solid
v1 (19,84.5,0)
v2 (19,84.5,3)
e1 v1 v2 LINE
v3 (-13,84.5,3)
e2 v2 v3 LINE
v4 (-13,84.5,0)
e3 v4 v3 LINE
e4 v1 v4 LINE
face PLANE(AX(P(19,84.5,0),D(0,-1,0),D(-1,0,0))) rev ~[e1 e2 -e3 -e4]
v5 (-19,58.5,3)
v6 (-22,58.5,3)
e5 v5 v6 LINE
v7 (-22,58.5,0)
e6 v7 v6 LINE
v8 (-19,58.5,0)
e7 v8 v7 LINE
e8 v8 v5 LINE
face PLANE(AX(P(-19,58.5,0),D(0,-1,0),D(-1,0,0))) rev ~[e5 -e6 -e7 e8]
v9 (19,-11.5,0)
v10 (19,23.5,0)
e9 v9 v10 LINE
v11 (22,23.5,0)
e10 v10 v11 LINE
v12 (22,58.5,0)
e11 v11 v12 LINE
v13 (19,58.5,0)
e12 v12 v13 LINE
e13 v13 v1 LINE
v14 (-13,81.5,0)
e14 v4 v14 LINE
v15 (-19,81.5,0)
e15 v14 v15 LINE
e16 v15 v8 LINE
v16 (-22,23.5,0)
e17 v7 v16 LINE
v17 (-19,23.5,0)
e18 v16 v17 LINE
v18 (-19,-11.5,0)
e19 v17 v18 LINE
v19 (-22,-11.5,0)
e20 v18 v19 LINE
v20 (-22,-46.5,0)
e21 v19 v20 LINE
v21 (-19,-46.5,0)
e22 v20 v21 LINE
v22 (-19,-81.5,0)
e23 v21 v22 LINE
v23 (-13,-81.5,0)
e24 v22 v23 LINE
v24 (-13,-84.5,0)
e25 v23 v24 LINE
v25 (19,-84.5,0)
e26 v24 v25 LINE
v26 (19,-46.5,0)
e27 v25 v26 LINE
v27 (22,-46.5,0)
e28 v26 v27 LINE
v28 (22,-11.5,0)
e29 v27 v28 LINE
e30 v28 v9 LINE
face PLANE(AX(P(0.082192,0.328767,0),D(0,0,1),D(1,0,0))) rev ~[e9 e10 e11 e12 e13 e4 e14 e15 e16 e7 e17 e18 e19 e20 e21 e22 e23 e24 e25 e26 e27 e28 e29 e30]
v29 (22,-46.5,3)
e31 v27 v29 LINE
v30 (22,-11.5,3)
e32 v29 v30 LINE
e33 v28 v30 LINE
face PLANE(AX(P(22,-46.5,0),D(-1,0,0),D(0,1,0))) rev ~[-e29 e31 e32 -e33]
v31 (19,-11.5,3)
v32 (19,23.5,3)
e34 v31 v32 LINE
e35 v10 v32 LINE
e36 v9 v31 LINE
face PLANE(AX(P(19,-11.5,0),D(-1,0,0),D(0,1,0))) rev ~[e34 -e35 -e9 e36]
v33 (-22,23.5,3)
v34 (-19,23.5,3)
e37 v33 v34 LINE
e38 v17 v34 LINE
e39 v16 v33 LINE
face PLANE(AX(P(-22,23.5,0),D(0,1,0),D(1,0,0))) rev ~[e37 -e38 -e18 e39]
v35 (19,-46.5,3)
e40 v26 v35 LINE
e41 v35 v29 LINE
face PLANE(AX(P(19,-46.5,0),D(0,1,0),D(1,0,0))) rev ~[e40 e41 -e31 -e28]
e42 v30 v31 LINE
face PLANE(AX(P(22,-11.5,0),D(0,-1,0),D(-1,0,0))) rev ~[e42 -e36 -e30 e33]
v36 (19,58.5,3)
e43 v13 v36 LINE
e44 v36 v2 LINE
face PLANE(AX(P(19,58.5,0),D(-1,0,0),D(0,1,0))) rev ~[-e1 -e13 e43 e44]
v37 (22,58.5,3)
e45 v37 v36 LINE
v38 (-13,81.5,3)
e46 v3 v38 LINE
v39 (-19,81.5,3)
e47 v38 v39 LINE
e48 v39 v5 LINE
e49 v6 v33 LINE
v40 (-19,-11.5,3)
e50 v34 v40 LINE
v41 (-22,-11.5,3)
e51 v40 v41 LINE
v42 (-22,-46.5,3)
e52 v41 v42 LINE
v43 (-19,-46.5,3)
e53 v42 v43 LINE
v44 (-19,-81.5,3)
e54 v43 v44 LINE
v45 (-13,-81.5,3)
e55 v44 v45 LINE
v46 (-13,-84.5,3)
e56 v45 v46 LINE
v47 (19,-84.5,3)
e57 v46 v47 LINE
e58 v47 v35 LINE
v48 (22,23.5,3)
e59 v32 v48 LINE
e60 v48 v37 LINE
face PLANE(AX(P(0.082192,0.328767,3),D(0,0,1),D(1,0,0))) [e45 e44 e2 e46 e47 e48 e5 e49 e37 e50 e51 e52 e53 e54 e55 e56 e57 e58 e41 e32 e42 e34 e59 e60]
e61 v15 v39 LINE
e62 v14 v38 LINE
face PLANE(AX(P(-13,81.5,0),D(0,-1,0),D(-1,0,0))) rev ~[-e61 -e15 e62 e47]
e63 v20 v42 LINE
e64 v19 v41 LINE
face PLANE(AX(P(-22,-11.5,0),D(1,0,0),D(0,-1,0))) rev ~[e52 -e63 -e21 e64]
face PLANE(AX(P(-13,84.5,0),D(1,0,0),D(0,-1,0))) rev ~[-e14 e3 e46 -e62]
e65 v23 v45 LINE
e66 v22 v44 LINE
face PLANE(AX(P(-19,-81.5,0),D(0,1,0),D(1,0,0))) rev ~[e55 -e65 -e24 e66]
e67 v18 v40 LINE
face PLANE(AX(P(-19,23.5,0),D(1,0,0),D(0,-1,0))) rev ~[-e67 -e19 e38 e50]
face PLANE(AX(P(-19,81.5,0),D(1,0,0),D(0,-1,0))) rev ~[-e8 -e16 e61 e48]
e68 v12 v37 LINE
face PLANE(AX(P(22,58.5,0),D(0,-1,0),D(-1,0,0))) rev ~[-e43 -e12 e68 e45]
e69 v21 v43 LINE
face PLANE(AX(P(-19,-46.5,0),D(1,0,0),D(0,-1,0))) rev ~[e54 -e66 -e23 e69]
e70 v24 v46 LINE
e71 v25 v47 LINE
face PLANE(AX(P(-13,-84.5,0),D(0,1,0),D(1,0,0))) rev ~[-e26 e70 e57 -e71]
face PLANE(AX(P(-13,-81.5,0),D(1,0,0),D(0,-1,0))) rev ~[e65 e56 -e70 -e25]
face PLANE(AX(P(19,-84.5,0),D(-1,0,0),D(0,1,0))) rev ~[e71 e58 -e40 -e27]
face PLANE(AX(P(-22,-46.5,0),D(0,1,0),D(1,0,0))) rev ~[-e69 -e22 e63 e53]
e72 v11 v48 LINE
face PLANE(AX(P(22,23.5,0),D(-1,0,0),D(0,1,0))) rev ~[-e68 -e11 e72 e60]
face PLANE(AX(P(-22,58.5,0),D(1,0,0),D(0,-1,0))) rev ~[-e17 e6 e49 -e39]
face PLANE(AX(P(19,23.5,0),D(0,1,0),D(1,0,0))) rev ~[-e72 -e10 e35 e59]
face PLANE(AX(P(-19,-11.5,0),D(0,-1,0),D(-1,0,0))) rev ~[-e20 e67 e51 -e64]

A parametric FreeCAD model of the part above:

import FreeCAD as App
import Part
import Sketcher
from FreeCAD import Vector
Q = App.Units.Quantity


def add_polygon(sketch, points):
    """Adds a closed chain of lines whose ends are joined by coincident constraints."""
    first, n = sketch.GeometryCount, len(points)
    for a, b in zip(points, points[1:] + points[:1]):
        sketch.addGeometry(Part.LineSegment(App.Vector(*a, 0), App.Vector(*b, 0)), False)
    for i in range(n):
        sketch.addConstraint(Sketcher.Constraint("Coincident", first + i, 2, first + (i + 1) % n, 1))

doc = App.newDocument("Part")
body = doc.addObject("PartDesign::Body", "Body")

# Sketch on XY plane
sketch1 = body.newObject("Sketcher::SketchObject", "Sketch")
sketch1.AttachmentSupport = (doc.getObject("XY_Plane"), [""])
sketch1.MapMode = "FlatFace"
add_polygon(sketch1, [(22, 23.5), (22, 58.5), (19, 58.5), (19, 84.5), (-13, 84.5), (-13, 81.5), (-19, 81.5), (-19, 58.5), (-22, 58.5), (-22, 23.5), (-19, 23.5), (-19, -11.5), (-22, -11.5), (-22, -46.5), (-19, -46.5), (-19, -81.5), (-13, -81.5), (-13, -84.5), (19, -84.5), (19, -46.5), (22, -46.5), (22, -11.5), (19, -11.5), (19, 23.5)])  # lines 0-23
sketch1.addConstraint(Sketcher.Constraint("Vertical", 0))
sketch1.addConstraint(Sketcher.Constraint("Horizontal", 1))
sketch1.addConstraint(Sketcher.Constraint("Vertical", 2))
sketch1.addConstraint(Sketcher.Constraint("Horizontal", 3))
sketch1.addConstraint(Sketcher.Constraint("Vertical", 4))
sketch1.addConstraint(Sketcher.Constraint("Horizontal", 5))
sketch1.addConstraint(Sketcher.Constraint("Vertical", 6))
sketch1.addConstraint(Sketcher.Constraint("Horizontal", 7))
sketch1.addConstraint(Sketcher.Constraint("Vertical", 8))
sketch1.addConstraint(Sketcher.Constraint("Horizontal", 9))
sketch1.addConstraint(Sketcher.Constraint("Vertical", 10))
sketch1.addConstraint(Sketcher.Constraint("Horizontal", 11))
sketch1.addConstraint(Sketcher.Constraint("Vertical", 12))
sketch1.addConstraint(Sketcher.Constraint("Horizontal", 13))
sketch1.addConstraint(Sketcher.Constraint("Vertical", 14))
sketch1.addConstraint(Sketcher.Constraint("Horizontal", 15))
sketch1.addConstraint(Sketcher.Constraint("Vertical", 16))
sketch1.addConstraint(Sketcher.Constraint("Horizontal", 17))
sketch1.addConstraint(Sketcher.Constraint("Vertical", 18))
sketch1.addConstraint(Sketcher.Constraint("Horizontal", 19))
sketch1.addConstraint(Sketcher.Constraint("Vertical", 20))
sketch1.addConstraint(Sketcher.Constraint("Horizontal", 21))
sketch1.addConstraint(Sketcher.Constraint("Vertical", 22))
sketch1.addConstraint(Sketcher.Constraint("Horizontal", 23))
sketch1.addConstraint(Sketcher.Constraint("Symmetric", 1, 2, 6, 2, -2))
sketch1.addConstraint(Sketcher.Constraint("Symmetric", 13, 2, 18, 2, -2))
sketch1.addConstraint(Sketcher.Constraint("Symmetric", 11, 2, 20, 2, -2))
sketch1.addConstraint(Sketcher.Constraint("Symmetric", 9, 2, 22, 2, -2))
sketch1.addConstraint(Sketcher.Constraint("Symmetric", 5, 2, 14, 2, -1))
sketch1.addConstraint(Sketcher.Constraint("Symmetric", 3, 2, 16, 2, -1))
sketch1.addConstraint(Sketcher.Constraint("Vertical", 6, 2, 9, 2))
sketch1.addConstraint(Sketcher.Constraint("Vertical", 8, 2, 11, 2))
sketch1.addConstraint(Sketcher.Constraint("Vertical", 0, 2, 19, 2))
sketch1.addConstraint(Sketcher.Constraint("Equal", 23, 4))
sketch1.addConstraint(Sketcher.Constraint("Equal", 8, 10))
sketch1.addConstraint(Sketcher.Constraint("Equal", 10, 12))
sketch1.addConstraint(Sketcher.Constraint("Equal", 12, 14))
sketch1.addConstraint(Sketcher.Constraint("DistanceX", 1, 2, 1, 1, Q("3 mm")))
sketch1.addConstraint(Sketcher.Constraint("DistanceX", 3, 2, 3, 1, Q("32 mm")))
sketch1.addConstraint(Sketcher.Constraint("DistanceX", 5, 2, 5, 1, Q("6 mm")))
sketch1.addConstraint(Sketcher.Constraint("DistanceY", 0, 1, 0, 2, Q("35 mm")))
sketch1.addConstraint(Sketcher.Constraint("DistanceY", 2, 1, 2, 2, Q("26 mm")))
pad1 = body.newObject("PartDesign::Pad", "Pad")
pad1.Profile = sketch1
pad1.Length = 3

doc.recompute()
